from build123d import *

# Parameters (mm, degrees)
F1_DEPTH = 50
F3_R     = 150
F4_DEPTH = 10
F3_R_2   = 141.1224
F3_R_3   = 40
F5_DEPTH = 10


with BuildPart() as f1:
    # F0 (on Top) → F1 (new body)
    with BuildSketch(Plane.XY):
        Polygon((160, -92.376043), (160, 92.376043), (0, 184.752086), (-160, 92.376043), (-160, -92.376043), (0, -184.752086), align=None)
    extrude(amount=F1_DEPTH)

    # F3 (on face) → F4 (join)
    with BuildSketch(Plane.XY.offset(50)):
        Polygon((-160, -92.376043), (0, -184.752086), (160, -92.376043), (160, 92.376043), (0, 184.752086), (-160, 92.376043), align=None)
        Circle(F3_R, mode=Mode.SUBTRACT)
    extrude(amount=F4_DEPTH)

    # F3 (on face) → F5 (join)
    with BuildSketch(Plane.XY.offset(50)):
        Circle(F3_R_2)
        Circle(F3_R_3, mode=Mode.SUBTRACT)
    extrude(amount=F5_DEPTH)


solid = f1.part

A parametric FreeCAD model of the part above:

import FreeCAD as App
import Part
import Sketcher
Q = App.Units.Quantity


def add_polygon(sketch, points):
    """Adds a closed chain of lines whose ends are joined by coincident constraints."""
    first, n = sketch.GeometryCount, len(points)
    for a, b in zip(points, points[1:] + points[:1]):
        sketch.addGeometry(Part.LineSegment(App.Vector(*a, 0), App.Vector(*b, 0)), False)
    for i in range(n):
        sketch.addConstraint(Sketcher.Constraint("Coincident", first + i, 2, first + (i + 1) % n, 1))

doc = App.newDocument("Part")
body = doc.addObject("PartDesign::Body", "Body")

# Sketch on XY plane
sketch1 = body.newObject("Sketcher::SketchObject", "Sketch")
sketch1.AttachmentSupport = (doc.getObject("XY_Plane"), [""])
sketch1.MapMode = "FlatFace"
add_polygon(sketch1, [(160, -92), (160, 92), (0, 185), (-160, 92), (-160, -92), (0, -185)])  # lines 0-5
sketch1.addConstraint([
    Sketcher.Constraint("Vertical", 0),
    Sketcher.Constraint("Vertical", 3),
    Sketcher.Constraint("Symmetric", 0, 2, 3, 2, -1, 1),
    Sketcher.Constraint("Symmetric", 1, 2, 4, 2, -1, 1),
    Sketcher.Constraint("PointOnObject", 1, 2, -2),
    Sketcher.Constraint("Parallel", 2, 5),
    Sketcher.Constraint("Horizontal", 0, 2, 2, 2),
    Sketcher.Constraint("Angle", 1, Q("150 deg")),
    Sketcher.Constraint("DistanceX", -1, 1, 0, 2, Q("160 mm")),
    Sketcher.Constraint("DistanceY", 0, 1, 0, 2, Q("184.752086 mm")),
])
pad1 = body.newObject("PartDesign::Pad", "Pad")
pad1.Profile = sketch1
pad1.Length = 50

# Sketch on XY plane
sketch2 = body.newObject("Sketcher::SketchObject", "Sketch001")
sketch2.AttachmentSupport = (doc.getObject("XY_Plane"), [""])
sketch2.MapMode = "FlatFace"
sketch2.AttachmentOffset = App.Placement(App.Vector(0, 0, 50), App.Rotation())
add_polygon(sketch2, [(-160, -92), (0, -185), (160, -92), (160, 92), (0, 185), (-160, 92)])  # lines 0-5
sketch2.addGeometry(Part.Circle(App.Vector(0, 0, 0), App.Vector(0, 0, 1), 150), False)  # 6
sketch2.addConstraint([
    Sketcher.Constraint("Vertical", 2),
    Sketcher.Constraint("Vertical", 5),
    Sketcher.Constraint("Coincident", 6, 3, -1, 1),
    Sketcher.Constraint("Symmetric", 0, 2, 3, 2, -1, 1),
    Sketcher.Constraint("Symmetric", 1, 2, 4, 2, -1, 1),
    Sketcher.Constraint("PointOnObject", 0, 2, -2),
    Sketcher.Constraint("Parallel", 0, 3),
    Sketcher.Constraint("Horizontal", 2, 2, 4, 2),
    Sketcher.Constraint("Diameter", 6, Q("300 mm")),
    Sketcher.Constraint("Angle", 0, Q("-30 deg")),
    Sketcher.Constraint("DistanceX", -1, 1, 1, 2, Q("160 mm")),
    Sketcher.Constraint("DistanceY", 2, 1, 2, 2, Q("184.752086 mm")),
])
pad2 = body.newObject("PartDesign::Pad", "Pad001")
pad2.Profile = sketch2
pad2.Length = 10

# Sketch on XY plane
sketch3 = body.newObject("Sketcher::SketchObject", "Sketch002")
sketch3.AttachmentSupport = (doc.getObject("XY_Plane"), [""])
sketch3.MapMode = "FlatFace"
sketch3.AttachmentOffset = App.Placement(App.Vector(0, 0, 50), App.Rotation())
sketch3.addGeometry([
    Part.Circle(App.Vector(0, 0, 0), App.Vector(0, 0, 1), 141),
    Part.Circle(App.Vector(0, 0, 0), App.Vector(0, 0, 1), 40),
], False)
sketch3.addConstraint([
    Sketcher.Constraint("Coincident", 0, 3, -1, 1),
    Sketcher.Constraint("Coincident", 1, 3, -1, 1),
    Sketcher.Constraint("Diameter", 1, Q("80 mm")),
    Sketcher.Constraint("Diameter", 0, Q("282.2448 mm")),
])
pad3 = body.newObject("PartDesign::Pad", "Pad002")
pad3.Profile = sketch3
pad3.Length = 10

doc.recompute()
